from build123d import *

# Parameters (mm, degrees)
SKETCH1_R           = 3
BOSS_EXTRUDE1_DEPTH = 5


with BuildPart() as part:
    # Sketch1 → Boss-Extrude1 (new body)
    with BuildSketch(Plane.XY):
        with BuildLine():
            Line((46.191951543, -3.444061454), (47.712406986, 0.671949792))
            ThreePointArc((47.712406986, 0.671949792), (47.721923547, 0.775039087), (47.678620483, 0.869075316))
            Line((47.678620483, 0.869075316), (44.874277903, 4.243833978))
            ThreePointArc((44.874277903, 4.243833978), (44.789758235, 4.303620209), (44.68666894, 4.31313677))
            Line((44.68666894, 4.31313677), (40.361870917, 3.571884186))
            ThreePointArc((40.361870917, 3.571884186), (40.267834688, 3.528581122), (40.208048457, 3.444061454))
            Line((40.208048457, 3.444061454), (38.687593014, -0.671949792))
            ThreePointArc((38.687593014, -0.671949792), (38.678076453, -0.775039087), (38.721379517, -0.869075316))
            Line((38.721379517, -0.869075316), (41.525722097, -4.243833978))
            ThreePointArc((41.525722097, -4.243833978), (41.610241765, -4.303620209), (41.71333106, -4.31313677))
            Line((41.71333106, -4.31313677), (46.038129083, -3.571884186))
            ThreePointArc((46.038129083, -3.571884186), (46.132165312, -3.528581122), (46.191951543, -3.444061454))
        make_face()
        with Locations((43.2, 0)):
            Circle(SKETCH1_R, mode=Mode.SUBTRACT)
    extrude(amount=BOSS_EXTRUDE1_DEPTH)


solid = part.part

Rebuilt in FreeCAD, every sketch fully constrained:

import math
import FreeCAD as App
import Part
import Sketcher
from FreeCAD import Vector

doc = App.newDocument("Part")
body = doc.addObject("PartDesign::Body", "Body")

sketch1 = body.newObject("Sketcher::SketchObject", "Sketch")
sketch1.AttachmentSupport = (doc.getObject("XY_Plane"), [""])
sketch1.MapMode = "FlatFace"
sketch1.addGeometry(Part.LineSegment(Vector(46.19, -3.44, 0), Vector(47.71, 0.67, 0)), False)
sketch1.addGeometry(Part.ArcOfCircle(Part.Circle(Vector(47.52, 0.74, 0), Vector(0, 0, 1), 0.2), math.radians(-20), math.radians(40)), False)
sketch1.addGeometry(Part.LineSegment(Vector(47.68, 0.87, 0), Vector(44.87, 4.24, 0)), False)
sketch1.addGeometry(Part.ArcOfCircle(Part.Circle(Vector(44.72, 4.12, 0), Vector(0, 0, 1), 0.2), math.radians(40), math.radians(100)), False)
sketch1.addGeometry(Part.LineSegment(Vector(44.69, 4.31, 0), Vector(40.36, 3.57, 0)), False)
sketch1.addGeometry(Part.ArcOfCircle(Part.Circle(Vector(40.4, 3.37, 0), Vector(0, 0, 1), 0.2), math.radians(100), math.radians(160)), False)
sketch1.addGeometry(Part.LineSegment(Vector(40.21, 3.44, 0), Vector(38.69, -0.67, 0)), False)
sketch1.addGeometry(Part.ArcOfCircle(Part.Circle(Vector(38.88, -0.74, 0), Vector(0, 0, 1), 0.2), math.radians(160), math.radians(220)), False)
sketch1.addGeometry(Part.LineSegment(Vector(38.72, -0.87, 0), Vector(41.53, -4.24, 0)), False)
sketch1.addGeometry(Part.ArcOfCircle(Part.Circle(Vector(41.68, -4.12, 0), Vector(0, 0, 1), 0.2), math.radians(-140), math.radians(-80)), False)
sketch1.addGeometry(Part.LineSegment(Vector(41.71, -4.31, 0), Vector(46.04, -3.57, 0)), False)
sketch1.addGeometry(Part.ArcOfCircle(Part.Circle(Vector(46, -3.37, 0), Vector(0, 0, 1), 0.2), math.radians(-80), math.radians(-20)), False)
sketch1.addGeometry(Part.Circle(Vector(43.2, 0, 0), Vector(0, 0, 1), 3), False)
sketch1.addConstraint(Sketcher.Constraint("Tangent", 0, 2, 1, 1))
sketch1.addConstraint(Sketcher.Constraint("Tangent", 1, 2, 2, 1))
sketch1.addConstraint(Sketcher.Constraint("Tangent", 2, 2, 3, 1))
sketch1.addConstraint(Sketcher.Constraint("Tangent", 3, 2, 4, 1))
sketch1.addConstraint(Sketcher.Constraint("Tangent", 4, 2, 5, 1))
sketch1.addConstraint(Sketcher.Constraint("Tangent", 5, 2, 6, 1))
sketch1.addConstraint(Sketcher.Constraint("Tangent", 6, 2, 7, 1))
sketch1.addConstraint(Sketcher.Constraint("Tangent", 7, 2, 8, 1))
sketch1.addConstraint(Sketcher.Constraint("Tangent", 8, 2, 9, 1))
sketch1.addConstraint(Sketcher.Constraint("Tangent", 9, 2, 10, 1))
sketch1.addConstraint(Sketcher.Constraint("Tangent", 10, 2, 11, 1))
sketch1.addConstraint(Sketcher.Constraint("Tangent", 11, 2, 0, 1))
sketch1.addConstraint(Sketcher.Constraint("Equal", 1, 3))
sketch1.addConstraint(Sketcher.Constraint("Equal", 3, 5))
sketch1.addConstraint(Sketcher.Constraint("Equal", 5, 7))
sketch1.addConstraint(Sketcher.Constraint("Equal", 7, 9))
sketch1.addConstraint(Sketcher.Constraint("Equal", 9, 11))
sketch1.addConstraint(Sketcher.Constraint("PointOnObject", 12, 3, -1))
sketch1.addConstraint(Sketcher.Constraint("Parallel", 0, 6))
sketch1.addConstraint(Sketcher.Constraint("Parallel", 2, 8))
sketch1.addConstraint(Sketcher.Constraint("Parallel", 4, 10))
sketch1.addConstraint(Sketcher.Constraint("Equal", 0, 2))
sketch1.addConstraint(Sketcher.Constraint("Equal", 2, 4))
sketch1.addConstraint(Sketcher.Constraint("Equal", 4, 6))
sketch1.addConstraint(Sketcher.Constraint("Diameter", 12, 6.0))
sketch1.addConstraint(Sketcher.Constraint("Radius", 1, 0.2))
sketch1.addConstraint(Sketcher.Constraint("DistanceX", -1, 1, 12, 3, 43.2))
sketch1.addConstraint(Sketcher.Constraint("DistanceX", -1, 1, 1, 3, 47.524798))
sketch1.addConstraint(Sketcher.Constraint("DistanceX", -1, 1, 7, 3, 38.875202))
sketch1.addConstraint(Sketcher.Constraint("DistanceX", 5, 3, 3, 3, 4.324798))
sketch1.addConstraint(Sketcher.Constraint("DistanceY", -1, 1, 3, 3, 4.116011))
sketch1.addConstraint(Sketcher.Constraint("DistanceY", -1, 1, 5, 3, 3.374759))
sketch1.addConstraint(Sketcher.Constraint("DistanceY", 9, 3, -1, 1, 4.116011))
pad1 = body.newObject("PartDesign::Pad", "Pad")
pad1.Profile = sketch1
pad1.Length = 5

doc.recompute()
